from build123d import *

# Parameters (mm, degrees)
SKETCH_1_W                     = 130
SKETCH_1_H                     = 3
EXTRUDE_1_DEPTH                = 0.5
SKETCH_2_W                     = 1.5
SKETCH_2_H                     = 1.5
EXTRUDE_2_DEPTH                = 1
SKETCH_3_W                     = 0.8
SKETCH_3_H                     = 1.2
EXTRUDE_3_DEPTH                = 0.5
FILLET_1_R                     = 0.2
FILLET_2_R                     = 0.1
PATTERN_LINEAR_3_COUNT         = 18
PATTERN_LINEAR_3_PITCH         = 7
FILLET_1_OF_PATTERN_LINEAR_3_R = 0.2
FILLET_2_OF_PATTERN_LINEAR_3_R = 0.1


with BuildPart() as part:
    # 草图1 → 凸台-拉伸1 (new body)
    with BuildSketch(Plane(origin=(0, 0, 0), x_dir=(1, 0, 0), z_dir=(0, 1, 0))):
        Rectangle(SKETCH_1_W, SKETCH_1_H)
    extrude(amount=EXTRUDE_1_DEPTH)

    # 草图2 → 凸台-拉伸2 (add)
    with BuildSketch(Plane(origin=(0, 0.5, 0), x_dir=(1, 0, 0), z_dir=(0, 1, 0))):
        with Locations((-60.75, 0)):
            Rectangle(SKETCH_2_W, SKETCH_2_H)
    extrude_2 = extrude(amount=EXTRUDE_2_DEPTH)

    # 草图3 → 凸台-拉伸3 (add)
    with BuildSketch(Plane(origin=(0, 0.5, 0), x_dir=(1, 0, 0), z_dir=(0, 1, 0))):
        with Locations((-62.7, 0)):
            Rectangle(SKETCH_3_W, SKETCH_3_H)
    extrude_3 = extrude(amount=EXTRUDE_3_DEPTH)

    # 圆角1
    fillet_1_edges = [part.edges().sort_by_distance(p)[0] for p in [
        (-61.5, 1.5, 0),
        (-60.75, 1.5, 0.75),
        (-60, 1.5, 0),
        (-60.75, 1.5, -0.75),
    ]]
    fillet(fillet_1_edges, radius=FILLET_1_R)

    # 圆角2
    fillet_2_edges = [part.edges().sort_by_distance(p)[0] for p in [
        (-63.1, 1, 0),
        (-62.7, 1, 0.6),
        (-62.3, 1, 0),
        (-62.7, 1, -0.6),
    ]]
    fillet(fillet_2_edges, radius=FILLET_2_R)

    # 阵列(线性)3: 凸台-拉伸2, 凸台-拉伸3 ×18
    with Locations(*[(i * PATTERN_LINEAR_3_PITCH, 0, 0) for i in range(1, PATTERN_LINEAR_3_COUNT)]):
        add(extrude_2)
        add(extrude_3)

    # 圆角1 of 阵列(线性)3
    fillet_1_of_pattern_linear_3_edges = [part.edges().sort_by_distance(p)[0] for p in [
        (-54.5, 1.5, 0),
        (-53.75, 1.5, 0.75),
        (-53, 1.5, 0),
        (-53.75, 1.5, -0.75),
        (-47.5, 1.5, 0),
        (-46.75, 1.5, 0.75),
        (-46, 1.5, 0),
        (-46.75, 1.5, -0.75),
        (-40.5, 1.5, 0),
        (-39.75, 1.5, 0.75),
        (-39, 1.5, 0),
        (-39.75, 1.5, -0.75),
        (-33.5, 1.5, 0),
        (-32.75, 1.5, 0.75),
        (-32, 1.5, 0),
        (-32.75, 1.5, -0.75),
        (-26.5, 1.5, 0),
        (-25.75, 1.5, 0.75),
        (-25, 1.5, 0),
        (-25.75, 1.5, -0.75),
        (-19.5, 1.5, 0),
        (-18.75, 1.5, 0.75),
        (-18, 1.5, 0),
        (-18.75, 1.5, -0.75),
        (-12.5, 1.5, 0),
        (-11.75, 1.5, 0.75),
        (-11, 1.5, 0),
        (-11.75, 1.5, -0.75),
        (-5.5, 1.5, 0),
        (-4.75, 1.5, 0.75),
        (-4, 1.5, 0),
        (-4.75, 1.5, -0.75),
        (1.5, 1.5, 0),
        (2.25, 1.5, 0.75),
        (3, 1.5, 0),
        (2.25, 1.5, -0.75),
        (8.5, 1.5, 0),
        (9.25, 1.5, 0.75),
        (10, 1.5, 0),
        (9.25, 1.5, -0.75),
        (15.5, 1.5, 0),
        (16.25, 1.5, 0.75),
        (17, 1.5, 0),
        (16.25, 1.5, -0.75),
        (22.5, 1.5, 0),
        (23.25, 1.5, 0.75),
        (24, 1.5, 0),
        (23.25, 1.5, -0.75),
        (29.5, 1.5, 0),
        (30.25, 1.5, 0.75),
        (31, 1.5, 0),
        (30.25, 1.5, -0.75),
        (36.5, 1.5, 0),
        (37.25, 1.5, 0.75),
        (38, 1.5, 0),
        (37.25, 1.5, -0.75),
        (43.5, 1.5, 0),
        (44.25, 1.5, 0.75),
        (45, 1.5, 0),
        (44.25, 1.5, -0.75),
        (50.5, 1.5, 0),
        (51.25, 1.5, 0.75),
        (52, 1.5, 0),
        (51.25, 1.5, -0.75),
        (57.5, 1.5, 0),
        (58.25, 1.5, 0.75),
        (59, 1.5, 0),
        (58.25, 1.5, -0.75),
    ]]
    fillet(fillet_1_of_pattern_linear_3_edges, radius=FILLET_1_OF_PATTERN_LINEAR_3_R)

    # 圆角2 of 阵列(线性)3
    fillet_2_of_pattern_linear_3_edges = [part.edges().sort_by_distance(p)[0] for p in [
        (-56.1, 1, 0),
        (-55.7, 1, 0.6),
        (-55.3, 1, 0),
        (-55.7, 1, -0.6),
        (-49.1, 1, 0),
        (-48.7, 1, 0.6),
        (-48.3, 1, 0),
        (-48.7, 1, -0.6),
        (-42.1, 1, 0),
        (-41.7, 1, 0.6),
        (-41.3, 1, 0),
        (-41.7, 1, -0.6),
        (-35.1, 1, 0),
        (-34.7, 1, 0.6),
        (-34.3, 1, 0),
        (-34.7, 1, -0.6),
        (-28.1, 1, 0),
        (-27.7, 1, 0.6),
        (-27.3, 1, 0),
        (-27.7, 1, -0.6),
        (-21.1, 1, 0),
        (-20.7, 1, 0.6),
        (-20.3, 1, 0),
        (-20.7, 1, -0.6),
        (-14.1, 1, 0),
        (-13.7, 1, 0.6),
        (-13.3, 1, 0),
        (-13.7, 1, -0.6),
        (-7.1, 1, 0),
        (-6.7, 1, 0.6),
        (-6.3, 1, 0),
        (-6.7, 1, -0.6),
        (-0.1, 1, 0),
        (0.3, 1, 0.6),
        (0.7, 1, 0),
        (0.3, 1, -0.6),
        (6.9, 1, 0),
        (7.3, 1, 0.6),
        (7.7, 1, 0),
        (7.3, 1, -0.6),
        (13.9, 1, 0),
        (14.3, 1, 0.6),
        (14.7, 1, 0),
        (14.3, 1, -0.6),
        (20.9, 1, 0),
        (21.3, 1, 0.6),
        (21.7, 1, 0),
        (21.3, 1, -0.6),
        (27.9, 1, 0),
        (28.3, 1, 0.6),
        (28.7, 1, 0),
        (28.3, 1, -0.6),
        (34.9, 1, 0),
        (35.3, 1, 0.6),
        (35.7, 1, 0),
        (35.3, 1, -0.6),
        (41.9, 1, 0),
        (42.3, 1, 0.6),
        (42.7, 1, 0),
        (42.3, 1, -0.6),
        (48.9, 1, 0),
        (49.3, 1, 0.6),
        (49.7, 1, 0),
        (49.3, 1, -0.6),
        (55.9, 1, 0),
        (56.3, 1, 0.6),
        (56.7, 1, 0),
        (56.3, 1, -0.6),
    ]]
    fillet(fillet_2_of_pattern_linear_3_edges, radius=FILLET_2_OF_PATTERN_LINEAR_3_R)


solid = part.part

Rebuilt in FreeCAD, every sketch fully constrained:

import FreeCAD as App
import Part
import Sketcher
from FreeCAD import Vector


def edges_at(feature, points):
    """Names of the edges that pass closest to the given points."""
    edges = feature.Shape.Edges
    near = lambda p: min(range(len(edges)), key=lambda i: edges[i].distToShape(Part.Vertex(*p))[0])
    return sorted({f"Edge{near(p) + 1}" for p in points})


def add_polygon(sketch, points):
    """Adds a closed chain of lines whose ends are joined by coincident constraints."""
    first, n = sketch.GeometryCount, len(points)
    for a, b in zip(points, points[1:] + points[:1]):
        sketch.addGeometry(Part.LineSegment(App.Vector(*a, 0), App.Vector(*b, 0)), False)
    for i in range(n):
        sketch.addConstraint(Sketcher.Constraint("Coincident", first + i, 2, first + (i + 1) % n, 1))

doc = App.newDocument("Part")
params = doc.addObject("Spreadsheet::Sheet", "Params")
for row, (alias, value) in enumerate([
    ("sketch1_width", "130 mm"),
    ("sketch1_height", "3 mm"),
    ("pad1_length", "0.5 mm"),
    ("sketch2_width", "1.5 mm"),
    ("pad2_length", "1 mm"),
    ("sketch3_width", "0.8 mm"),
    ("sketch3_height", "1.2 mm"),
    ("pad3_length", "0.5 mm"),
    ("fillet_radius", "0.2 mm"),
    ("fillet2_radius", "0.1 mm"),
    ("linearpattern_pitch", "7 mm"),
    ("fillet3_radius", "0.2 mm"),
    ("fillet4_radius", "0.1 mm"),
], start=1):
    params.set(f"A{row}", alias)
    params.set(f"B{row}", "=" + value)
    params.setAlias(f"B{row}", alias)

body = doc.addObject("PartDesign::Body", "Body")

sketch1 = doc.addObject("Sketcher::SketchObject", "Sketch")
body.addObject(sketch1)
sketch1.AttachmentSupport = (doc.XZ_Plane, [""])
sketch1.MapMode = "FlatFace"
add_polygon(sketch1, [(-65, -1.5), (-65, 1.5), (65, 1.5), (65, -1.5)])
sketch1.addConstraint([
    Sketcher.Constraint("Vertical", 0),
    Sketcher.Constraint("Horizontal", 1),
    Sketcher.Constraint("Vertical", 2),
    Sketcher.Constraint("Horizontal", 3),
    Sketcher.Constraint("Symmetric", 0, 2, 2, 2, -1, 1),
    Sketcher.Constraint("DistanceX", 1, 1, 1, 2, 130.0),
    Sketcher.Constraint("DistanceY", 0, 1, 0, 2, 3.0),
])
sketch1.setExpression("Constraints[9]", "Params.sketch1_width")
sketch1.setExpression("Constraints[10]", "Params.sketch1_height")
pad1 = doc.addObject("PartDesign::Pad", "Pad")
body.addObject(pad1)
pad1.Profile = sketch1
pad1.setExpression("Length", "Params.pad1_length")
pad1.Reversed = True

sketch2 = doc.addObject("Sketcher::SketchObject", "Sketch001")
body.addObject(sketch2)
sketch2.AttachmentSupport = (doc.XZ_Plane, [""])
sketch2.MapMode = "FlatFace"
sketch2.AttachmentOffset = App.Placement(Vector(0, 0, -0.5), App.Rotation())
add_polygon(sketch2, [(-61.5, -0.8), (-61.5, 0.8), (-60, 0.8), (-60, -0.8)])
sketch2.addConstraint([
    Sketcher.Constraint("Vertical", 0),
    Sketcher.Constraint("Horizontal", 1),
    Sketcher.Constraint("Vertical", 2),
    Sketcher.Constraint("Horizontal", 3),
    Sketcher.Constraint("Equal", 3, 0),
    Sketcher.Constraint("DistanceX", 1, 1, 1, 2, 1.5),
    Sketcher.Constraint("DistanceX", 1, 2, -1, 1, 60.0),
    Sketcher.Constraint("DistanceY", -1, 1, 0, 2, 0.75),
])
sketch2.setExpression("Constraints[9]", "Params.sketch2_width")
pad2 = doc.addObject("PartDesign::Pad", "Pad001")
body.addObject(pad2)
pad2.Profile = sketch2
pad2.setExpression("Length", "Params.pad2_length")
pad2.Reversed = True

sketch3 = doc.addObject("Sketcher::SketchObject", "Sketch002")
body.addObject(sketch3)
sketch3.AttachmentSupport = (doc.XZ_Plane, [""])
sketch3.MapMode = "FlatFace"
sketch3.AttachmentOffset = App.Placement(Vector(0, 0, -0.5), App.Rotation())
add_polygon(sketch3, [(-63.1, -0.6), (-63.1, 0.6), (-62.3, 0.6), (-62.3, -0.6)])
sketch3.addConstraint([
    Sketcher.Constraint("Vertical", 0),
    Sketcher.Constraint("Horizontal", 1),
    Sketcher.Constraint("Vertical", 2),
    Sketcher.Constraint("Horizontal", 3),
    Sketcher.Constraint("DistanceX", 1, 1, 1, 2, 0.8),
    Sketcher.Constraint("DistanceY", 0, 1, 0, 2, 1.2),
    Sketcher.Constraint("DistanceX", 0, 2, -1, 1, 63.1),
    Sketcher.Constraint("DistanceY", -1, 1, 0, 2, 0.6),
])
sketch3.setExpression("Constraints[8]", "Params.sketch3_width")
sketch3.setExpression("Constraints[9]", "Params.sketch3_height")
pad3 = doc.addObject("PartDesign::Pad", "Pad002")
body.addObject(pad3)
pad3.Profile = sketch3
pad3.setExpression("Length", "Params.pad3_length")
pad3.Reversed = True
doc.recompute()

fillet = doc.addObject("PartDesign::Fillet", "Fillet")
body.addObject(fillet)
fillet.Base = (pad3, edges_at(pad3, [
    (-61.5, 1.5, 0),
    (-60.75, 1.5, 0.75),
    (-60, 1.5, 0),
    (-60.75, 1.5, -0.75),
]))
fillet.setExpression("Radius", "Params.fillet_radius")
doc.recompute()

fillet2 = doc.addObject("PartDesign::Fillet", "Fillet001")
body.addObject(fillet2)
fillet2.Base = (fillet, edges_at(fillet, [
    (-63.1, 1, 0),
    (-62.7, 1, 0.6),
    (-62.3, 1, 0),
    (-62.7, 1, -0.6),
]))
fillet2.setExpression("Radius", "Params.fillet2_radius")
doc.recompute()

linearpattern = doc.addObject("PartDesign::LinearPattern", "LinearPattern")
body.addObject(linearpattern)
linearpattern.Originals = [pad2, pad3]
linearpattern.Direction = (doc.X_Axis, [""])
linearpattern.Mode = "offset"
linearpattern.setExpression("Offset", "Params.linearpattern_pitch")
linearpattern.Occurrences = 18
body.Tip = linearpattern
doc.recompute()

fillet3 = doc.addObject("PartDesign::Fillet", "Fillet002")
body.addObject(fillet3)
fillet3.Base = (linearpattern, edges_at(linearpattern, [
    (-54.5, 1.5, 0),
    (-53.75, 1.5, 0.75),
    (-53, 1.5, 0),
    (-53.75, 1.5, -0.75),
    (-47.5, 1.5, 0),
    (-46.75, 1.5, 0.75),
    (-46, 1.5, 0),
    (-46.75, 1.5, -0.75),
    (-40.5, 1.5, 0),
    (-39.75, 1.5, 0.75),
    (-39, 1.5, 0),
    (-39.75, 1.5, -0.75),
    (-33.5, 1.5, 0),
    (-32.75, 1.5, 0.75),
    (-32, 1.5, 0),
    (-32.75, 1.5, -0.75),
    (-26.5, 1.5, 0),
    (-25.75, 1.5, 0.75),
    (-25, 1.5, 0),
    (-25.75, 1.5, -0.75),
    (-19.5, 1.5, 0),
    (-18.75, 1.5, 0.75),
    (-18, 1.5, 0),
    (-18.75, 1.5, -0.75),
    (-12.5, 1.5, 0),
    (-11.75, 1.5, 0.75),
    (-11, 1.5, 0),
    (-11.75, 1.5, -0.75),
    (-5.5, 1.5, 0),
    (-4.75, 1.5, 0.75),
    (-4, 1.5, 0),
    (-4.75, 1.5, -0.75),
    (1.5, 1.5, 0),
    (2.25, 1.5, 0.75),
    (3, 1.5, 0),
    (2.25, 1.5, -0.75),
    (8.5, 1.5, 0),
    (9.25, 1.5, 0.75),
    (10, 1.5, 0),
    (9.25, 1.5, -0.75),
    (15.5, 1.5, 0),
    (16.25, 1.5, 0.75),
    (17, 1.5, 0),
    (16.25, 1.5, -0.75),
    (22.5, 1.5, 0),
    (23.25, 1.5, 0.75),
    (24, 1.5, 0),
    (23.25, 1.5, -0.75),
    (29.5, 1.5, 0),
    (30.25, 1.5, 0.75),
    (31, 1.5, 0),
    (30.25, 1.5, -0.75),
    (36.5, 1.5, 0),
    (37.25, 1.5, 0.75),
    (38, 1.5, 0),
    (37.25, 1.5, -0.75),
    (43.5, 1.5, 0),
    (44.25, 1.5, 0.75),
    (45, 1.5, 0),
    (44.25, 1.5, -0.75),
    (50.5, 1.5, 0),
    (51.25, 1.5, 0.75),
    (52, 1.5, 0),
    (51.25, 1.5, -0.75),
    (57.5, 1.5, 0),
    (58.25, 1.5, 0.75),
    (59, 1.5, 0),
    (58.25, 1.5, -0.75),
]))
fillet3.setExpression("Radius", "Params.fillet3_radius")
doc.recompute()

fillet4 = doc.addObject("PartDesign::Fillet", "Fillet003")
body.addObject(fillet4)
fillet4.Base = (fillet3, edges_at(fillet3, [
    (-56.1, 1, 0),
    (-55.7, 1, 0.6),
    (-55.3, 1, 0),
    (-55.7, 1, -0.6),
    (-49.1, 1, 0),
    (-48.7, 1, 0.6),
    (-48.3, 1, 0),
    (-48.7, 1, -0.6),
    (-42.1, 1, 0),
    (-41.7, 1, 0.6),
    (-41.3, 1, 0),
    (-41.7, 1, -0.6),
    (-35.1, 1, 0),
    (-34.7, 1, 0.6),
    (-34.3, 1, 0),
    (-34.7, 1, -0.6),
    (-28.1, 1, 0),
    (-27.7, 1, 0.6),
    (-27.3, 1, 0),
    (-27.7, 1, -0.6),
    (-21.1, 1, 0),
    (-20.7, 1, 0.6),
    (-20.3, 1, 0),
    (-20.7, 1, -0.6),
    (-14.1, 1, 0),
    (-13.7, 1, 0.6),
    (-13.3, 1, 0),
    (-13.7, 1, -0.6),
    (-7.1, 1, 0),
    (-6.7, 1, 0.6),
    (-6.3, 1, 0),
    (-6.7, 1, -0.6),
    (-0.1, 1, 0),
    (0.3, 1, 0.6),
    (0.7, 1, 0),
    (0.3, 1, -0.6),
    (6.9, 1, 0),
    (7.3, 1, 0.6),
    (7.7, 1, 0),
    (7.3, 1, -0.6),
    (13.9, 1, 0),
    (14.3, 1, 0.6),
    (14.7, 1, 0),
    (14.3, 1, -0.6),
    (20.9, 1, 0),
    (21.3, 1, 0.6),
    (21.7, 1, 0),
    (21.3, 1, -0.6),
    (27.9, 1, 0),
    (28.3, 1, 0.6),
    (28.7, 1, 0),
    (28.3, 1, -0.6),
    (34.9, 1, 0),
    (35.3, 1, 0.6),
    (35.7, 1, 0),
    (35.3, 1, -0.6),
    (41.9, 1, 0),
    (42.3, 1, 0.6),
    (42.7, 1, 0),
    (42.3, 1, -0.6),
    (48.9, 1, 0),
    (49.3, 1, 0.6),
    (49.7, 1, 0),
    (49.3, 1, -0.6),
    (55.9, 1, 0),
    (56.3, 1, 0.6),
    (56.7, 1, 0),
    (56.3, 1, -0.6),
]))
fillet4.setExpression("Radius", "Params.fillet4_radius")

doc.recompute()
